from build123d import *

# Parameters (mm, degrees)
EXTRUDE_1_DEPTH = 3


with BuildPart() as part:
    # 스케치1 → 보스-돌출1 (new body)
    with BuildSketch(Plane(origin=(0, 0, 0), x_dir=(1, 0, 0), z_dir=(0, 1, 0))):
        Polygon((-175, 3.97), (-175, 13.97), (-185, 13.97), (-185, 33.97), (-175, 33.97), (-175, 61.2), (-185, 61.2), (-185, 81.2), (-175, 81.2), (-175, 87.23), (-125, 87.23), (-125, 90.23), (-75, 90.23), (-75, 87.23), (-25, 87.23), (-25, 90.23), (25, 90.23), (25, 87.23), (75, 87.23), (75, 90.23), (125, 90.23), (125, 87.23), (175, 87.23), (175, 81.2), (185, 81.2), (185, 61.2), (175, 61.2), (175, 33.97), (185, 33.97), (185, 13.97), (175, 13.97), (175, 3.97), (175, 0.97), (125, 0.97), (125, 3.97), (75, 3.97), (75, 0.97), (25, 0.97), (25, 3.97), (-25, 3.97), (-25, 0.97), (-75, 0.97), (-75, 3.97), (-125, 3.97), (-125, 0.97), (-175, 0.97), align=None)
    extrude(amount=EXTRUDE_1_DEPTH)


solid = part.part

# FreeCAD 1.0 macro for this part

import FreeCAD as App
import Part
import Sketcher


def add_polygon(sketch, points):
    """Adds a closed chain of lines whose ends are joined by coincident constraints."""
    first, n = sketch.GeometryCount, len(points)
    for a, b in zip(points, points[1:] + points[:1]):
        sketch.addGeometry(Part.LineSegment(App.Vector(*a, 0), App.Vector(*b, 0)), False)
    for i in range(n):
        sketch.addConstraint(Sketcher.Constraint("Coincident", first + i, 2, first + (i + 1) % n, 1))

doc = App.newDocument("Part")
body = doc.addObject("PartDesign::Body", "Body")

# Sketch on XZ plane
sketch1 = doc.addObject("Sketcher::SketchObject", "Sketch")
body.addObject(sketch1)
sketch1.AttachmentSupport = (doc.XZ_Plane, [""])
sketch1.MapMode = "FlatFace"
add_polygon(sketch1, [(-175, -13.97), (-175, -0.97), (-125, -0.97), (-125, -3.97), (-75, -3.97), (-75, -0.97), (-25, -0.97), (-25, -3.97), (25, -3.97), (25, -0.97), (75, -0.97), (75, -3.97), (125, -3.97), (125, -0.97), (175, -0.97), (175, -13.97), (185, -13.97), (185, -33.97), (175, -33.97), (175, -61.2), (185, -61.2), (185, -81.2), (175, -81.2), (175, -87.23), (125, -87.23), (125, -90.23), (75, -90.23), (75, -87.23), (25, -87.23), (25, -90.23), (-25, -90.23), (-25, -87.23), (-75, -87.23), (-75, -90.23), (-125, -90.23), (-125, -87.23), (-175, -87.23), (-175, -81.2), (-185, -81.2), (-185, -61.2), (-175, -61.2), (-175, -33.97), (-185, -33.97), (-185, -13.97)])  # lines 0-43
sketch1.addConstraint(Sketcher.Constraint("Vertical", 0))
sketch1.addConstraint(Sketcher.Constraint("Horizontal", 1))
sketch1.addConstraint(Sketcher.Constraint("Vertical", 2))
sketch1.addConstraint(Sketcher.Constraint("Horizontal", 3))
sketch1.addConstraint(Sketcher.Constraint("Vertical", 4))
sketch1.addConstraint(Sketcher.Constraint("Horizontal", 5))
sketch1.addConstraint(Sketcher.Constraint("Vertical", 6))
sketch1.addConstraint(Sketcher.Constraint("Horizontal", 7))
sketch1.addConstraint(Sketcher.Constraint("Vertical", 8))
sketch1.addConstraint(Sketcher.Constraint("Horizontal", 9))
sketch1.addConstraint(Sketcher.Constraint("Vertical", 10))
sketch1.addConstraint(Sketcher.Constraint("Horizontal", 11))
sketch1.addConstraint(Sketcher.Constraint("Vertical", 12))
sketch1.addConstraint(Sketcher.Constraint("Horizontal", 13))
sketch1.addConstraint(Sketcher.Constraint("Vertical", 14))
sketch1.addConstraint(Sketcher.Constraint("Horizontal", 15))
sketch1.addConstraint(Sketcher.Constraint("Vertical", 16))
sketch1.addConstraint(Sketcher.Constraint("Horizontal", 17))
sketch1.addConstraint(Sketcher.Constraint("Vertical", 18))
sketch1.addConstraint(Sketcher.Constraint("Horizontal", 19))
sketch1.addConstraint(Sketcher.Constraint("Vertical", 20))
sketch1.addConstraint(Sketcher.Constraint("Horizontal", 21))
sketch1.addConstraint(Sketcher.Constraint("Vertical", 22))
sketch1.addConstraint(Sketcher.Constraint("Horizontal", 23))
sketch1.addConstraint(Sketcher.Constraint("Vertical", 24))
sketch1.addConstraint(Sketcher.Constraint("Horizontal", 25))
sketch1.addConstraint(Sketcher.Constraint("Vertical", 26))
sketch1.addConstraint(Sketcher.Constraint("Horizontal", 27))
sketch1.addConstraint(Sketcher.Constraint("Vertical", 28))
sketch1.addConstraint(Sketcher.Constraint("Horizontal", 29))
sketch1.addConstraint(Sketcher.Constraint("Vertical", 30))
sketch1.addConstraint(Sketcher.Constraint("Horizontal", 31))
sketch1.addConstraint(Sketcher.Constraint("Vertical", 32))
sketch1.addConstraint(Sketcher.Constraint("Horizontal", 33))
sketch1.addConstraint(Sketcher.Constraint("Vertical", 34))
sketch1.addConstraint(Sketcher.Constraint("Horizontal", 35))
sketch1.addConstraint(Sketcher.Constraint("Vertical", 36))
sketch1.addConstraint(Sketcher.Constraint("Horizontal", 37))
sketch1.addConstraint(Sketcher.Constraint("Vertical", 38))
sketch1.addConstraint(Sketcher.Constraint("Horizontal", 39))
sketch1.addConstraint(Sketcher.Constraint("Vertical", 40))
sketch1.addConstraint(Sketcher.Constraint("Horizontal", 41))
sketch1.addConstraint(Sketcher.Constraint("Vertical", 42))
sketch1.addConstraint(Sketcher.Constraint("Horizontal", 43))
sketch1.addConstraint(Sketcher.Constraint("Symmetric", 5, 2, 8, 2, -2))
sketch1.addConstraint(Sketcher.Constraint("Symmetric", 3, 2, 10, 2, -2))
sketch1.addConstraint(Sketcher.Constraint("Symmetric", 1, 2, 12, 2, -2))
sketch1.addConstraint(Sketcher.Constraint("Symmetric", 27, 2, 30, 2, -2))
sketch1.addConstraint(Sketcher.Constraint("Symmetric", 25, 2, 32, 2, -2))
sketch1.addConstraint(Sketcher.Constraint("Symmetric", 23, 2, 34, 2, -2))
sketch1.addConstraint(Sketcher.Constraint("Symmetric", 21, 2, 36, 2, -2))
sketch1.addConstraint(Sketcher.Constraint("Symmetric", 19, 2, 38, 2, -2))
sketch1.addConstraint(Sketcher.Constraint("Symmetric", 17, 2, 40, 2, -2))
sketch1.addConstraint(Sketcher.Constraint("Symmetric", 15, 2, 42, 2, -2))
sketch1.addConstraint(Sketcher.Constraint("Horizontal", 1, 2, 4, 2))
sketch1.addConstraint(Sketcher.Constraint("Horizontal", 3, 2, 6, 2))
sketch1.addConstraint(Sketcher.Constraint("Horizontal", 23, 2, 26, 2))
sketch1.addConstraint(Sketcher.Constraint("Horizontal", 25, 2, 28, 2))
sketch1.addConstraint(Sketcher.Constraint("Vertical", 14, 2, 17, 2))
sketch1.addConstraint(Sketcher.Constraint("Vertical", 16, 2, 19, 2))
sketch1.addConstraint(Sketcher.Constraint("Vertical", 18, 2, 21, 2))
sketch1.addConstraint(Sketcher.Constraint("Vertical", 12, 2, 23, 2))
sketch1.addConstraint(Sketcher.Constraint("Vertical", 10, 2, 25, 2))
sketch1.addConstraint(Sketcher.Constraint("Vertical", 8, 2, 27, 2))
sketch1.addConstraint(Sketcher.Constraint("Vertical", 0, 2, 35, 2))
sketch1.addConstraint(Sketcher.Constraint("Equal", 1, 3))
sketch1.addConstraint(Sketcher.Constraint("Equal", 3, 5))
sketch1.addConstraint(Sketcher.Constraint("Equal", 5, 7))
sketch1.addConstraint(Sketcher.Constraint("Equal", 16, 20))
sketch1.addConstraint(Sketcher.Constraint("Equal", 12, 24))
sketch1.addConstraint(Sketcher.Constraint("DistanceX", 1, 1, 1, 2, 50.0))
sketch1.addConstraint(Sketcher.Constraint("DistanceX", 15, 1, 15, 2, 10.0))
sketch1.addConstraint(Sketcher.Constraint("DistanceY", 0, 1, 0, 2, 13.0))
sketch1.addConstraint(Sketcher.Constraint("DistanceY", 2, 2, 2, 1, 3.0))
sketch1.addConstraint(Sketcher.Constraint("DistanceY", 16, 2, 16, 1, 20.0))
sketch1.addConstraint(Sketcher.Constraint("DistanceY", 18, 2, 18, 1, 27.23))
sketch1.addConstraint(Sketcher.Constraint("DistanceY", 22, 2, 22, 1, 6.03))
sketch1.addConstraint(Sketcher.Constraint("DistanceY", 18, 2, -1, 1, 61.2))
pad1 = doc.addObject("PartDesign::Pad", "Pad")
body.addObject(pad1)
pad1.Profile = sketch1
pad1.Length = 3
pad1.Reversed = True

doc.recompute()
